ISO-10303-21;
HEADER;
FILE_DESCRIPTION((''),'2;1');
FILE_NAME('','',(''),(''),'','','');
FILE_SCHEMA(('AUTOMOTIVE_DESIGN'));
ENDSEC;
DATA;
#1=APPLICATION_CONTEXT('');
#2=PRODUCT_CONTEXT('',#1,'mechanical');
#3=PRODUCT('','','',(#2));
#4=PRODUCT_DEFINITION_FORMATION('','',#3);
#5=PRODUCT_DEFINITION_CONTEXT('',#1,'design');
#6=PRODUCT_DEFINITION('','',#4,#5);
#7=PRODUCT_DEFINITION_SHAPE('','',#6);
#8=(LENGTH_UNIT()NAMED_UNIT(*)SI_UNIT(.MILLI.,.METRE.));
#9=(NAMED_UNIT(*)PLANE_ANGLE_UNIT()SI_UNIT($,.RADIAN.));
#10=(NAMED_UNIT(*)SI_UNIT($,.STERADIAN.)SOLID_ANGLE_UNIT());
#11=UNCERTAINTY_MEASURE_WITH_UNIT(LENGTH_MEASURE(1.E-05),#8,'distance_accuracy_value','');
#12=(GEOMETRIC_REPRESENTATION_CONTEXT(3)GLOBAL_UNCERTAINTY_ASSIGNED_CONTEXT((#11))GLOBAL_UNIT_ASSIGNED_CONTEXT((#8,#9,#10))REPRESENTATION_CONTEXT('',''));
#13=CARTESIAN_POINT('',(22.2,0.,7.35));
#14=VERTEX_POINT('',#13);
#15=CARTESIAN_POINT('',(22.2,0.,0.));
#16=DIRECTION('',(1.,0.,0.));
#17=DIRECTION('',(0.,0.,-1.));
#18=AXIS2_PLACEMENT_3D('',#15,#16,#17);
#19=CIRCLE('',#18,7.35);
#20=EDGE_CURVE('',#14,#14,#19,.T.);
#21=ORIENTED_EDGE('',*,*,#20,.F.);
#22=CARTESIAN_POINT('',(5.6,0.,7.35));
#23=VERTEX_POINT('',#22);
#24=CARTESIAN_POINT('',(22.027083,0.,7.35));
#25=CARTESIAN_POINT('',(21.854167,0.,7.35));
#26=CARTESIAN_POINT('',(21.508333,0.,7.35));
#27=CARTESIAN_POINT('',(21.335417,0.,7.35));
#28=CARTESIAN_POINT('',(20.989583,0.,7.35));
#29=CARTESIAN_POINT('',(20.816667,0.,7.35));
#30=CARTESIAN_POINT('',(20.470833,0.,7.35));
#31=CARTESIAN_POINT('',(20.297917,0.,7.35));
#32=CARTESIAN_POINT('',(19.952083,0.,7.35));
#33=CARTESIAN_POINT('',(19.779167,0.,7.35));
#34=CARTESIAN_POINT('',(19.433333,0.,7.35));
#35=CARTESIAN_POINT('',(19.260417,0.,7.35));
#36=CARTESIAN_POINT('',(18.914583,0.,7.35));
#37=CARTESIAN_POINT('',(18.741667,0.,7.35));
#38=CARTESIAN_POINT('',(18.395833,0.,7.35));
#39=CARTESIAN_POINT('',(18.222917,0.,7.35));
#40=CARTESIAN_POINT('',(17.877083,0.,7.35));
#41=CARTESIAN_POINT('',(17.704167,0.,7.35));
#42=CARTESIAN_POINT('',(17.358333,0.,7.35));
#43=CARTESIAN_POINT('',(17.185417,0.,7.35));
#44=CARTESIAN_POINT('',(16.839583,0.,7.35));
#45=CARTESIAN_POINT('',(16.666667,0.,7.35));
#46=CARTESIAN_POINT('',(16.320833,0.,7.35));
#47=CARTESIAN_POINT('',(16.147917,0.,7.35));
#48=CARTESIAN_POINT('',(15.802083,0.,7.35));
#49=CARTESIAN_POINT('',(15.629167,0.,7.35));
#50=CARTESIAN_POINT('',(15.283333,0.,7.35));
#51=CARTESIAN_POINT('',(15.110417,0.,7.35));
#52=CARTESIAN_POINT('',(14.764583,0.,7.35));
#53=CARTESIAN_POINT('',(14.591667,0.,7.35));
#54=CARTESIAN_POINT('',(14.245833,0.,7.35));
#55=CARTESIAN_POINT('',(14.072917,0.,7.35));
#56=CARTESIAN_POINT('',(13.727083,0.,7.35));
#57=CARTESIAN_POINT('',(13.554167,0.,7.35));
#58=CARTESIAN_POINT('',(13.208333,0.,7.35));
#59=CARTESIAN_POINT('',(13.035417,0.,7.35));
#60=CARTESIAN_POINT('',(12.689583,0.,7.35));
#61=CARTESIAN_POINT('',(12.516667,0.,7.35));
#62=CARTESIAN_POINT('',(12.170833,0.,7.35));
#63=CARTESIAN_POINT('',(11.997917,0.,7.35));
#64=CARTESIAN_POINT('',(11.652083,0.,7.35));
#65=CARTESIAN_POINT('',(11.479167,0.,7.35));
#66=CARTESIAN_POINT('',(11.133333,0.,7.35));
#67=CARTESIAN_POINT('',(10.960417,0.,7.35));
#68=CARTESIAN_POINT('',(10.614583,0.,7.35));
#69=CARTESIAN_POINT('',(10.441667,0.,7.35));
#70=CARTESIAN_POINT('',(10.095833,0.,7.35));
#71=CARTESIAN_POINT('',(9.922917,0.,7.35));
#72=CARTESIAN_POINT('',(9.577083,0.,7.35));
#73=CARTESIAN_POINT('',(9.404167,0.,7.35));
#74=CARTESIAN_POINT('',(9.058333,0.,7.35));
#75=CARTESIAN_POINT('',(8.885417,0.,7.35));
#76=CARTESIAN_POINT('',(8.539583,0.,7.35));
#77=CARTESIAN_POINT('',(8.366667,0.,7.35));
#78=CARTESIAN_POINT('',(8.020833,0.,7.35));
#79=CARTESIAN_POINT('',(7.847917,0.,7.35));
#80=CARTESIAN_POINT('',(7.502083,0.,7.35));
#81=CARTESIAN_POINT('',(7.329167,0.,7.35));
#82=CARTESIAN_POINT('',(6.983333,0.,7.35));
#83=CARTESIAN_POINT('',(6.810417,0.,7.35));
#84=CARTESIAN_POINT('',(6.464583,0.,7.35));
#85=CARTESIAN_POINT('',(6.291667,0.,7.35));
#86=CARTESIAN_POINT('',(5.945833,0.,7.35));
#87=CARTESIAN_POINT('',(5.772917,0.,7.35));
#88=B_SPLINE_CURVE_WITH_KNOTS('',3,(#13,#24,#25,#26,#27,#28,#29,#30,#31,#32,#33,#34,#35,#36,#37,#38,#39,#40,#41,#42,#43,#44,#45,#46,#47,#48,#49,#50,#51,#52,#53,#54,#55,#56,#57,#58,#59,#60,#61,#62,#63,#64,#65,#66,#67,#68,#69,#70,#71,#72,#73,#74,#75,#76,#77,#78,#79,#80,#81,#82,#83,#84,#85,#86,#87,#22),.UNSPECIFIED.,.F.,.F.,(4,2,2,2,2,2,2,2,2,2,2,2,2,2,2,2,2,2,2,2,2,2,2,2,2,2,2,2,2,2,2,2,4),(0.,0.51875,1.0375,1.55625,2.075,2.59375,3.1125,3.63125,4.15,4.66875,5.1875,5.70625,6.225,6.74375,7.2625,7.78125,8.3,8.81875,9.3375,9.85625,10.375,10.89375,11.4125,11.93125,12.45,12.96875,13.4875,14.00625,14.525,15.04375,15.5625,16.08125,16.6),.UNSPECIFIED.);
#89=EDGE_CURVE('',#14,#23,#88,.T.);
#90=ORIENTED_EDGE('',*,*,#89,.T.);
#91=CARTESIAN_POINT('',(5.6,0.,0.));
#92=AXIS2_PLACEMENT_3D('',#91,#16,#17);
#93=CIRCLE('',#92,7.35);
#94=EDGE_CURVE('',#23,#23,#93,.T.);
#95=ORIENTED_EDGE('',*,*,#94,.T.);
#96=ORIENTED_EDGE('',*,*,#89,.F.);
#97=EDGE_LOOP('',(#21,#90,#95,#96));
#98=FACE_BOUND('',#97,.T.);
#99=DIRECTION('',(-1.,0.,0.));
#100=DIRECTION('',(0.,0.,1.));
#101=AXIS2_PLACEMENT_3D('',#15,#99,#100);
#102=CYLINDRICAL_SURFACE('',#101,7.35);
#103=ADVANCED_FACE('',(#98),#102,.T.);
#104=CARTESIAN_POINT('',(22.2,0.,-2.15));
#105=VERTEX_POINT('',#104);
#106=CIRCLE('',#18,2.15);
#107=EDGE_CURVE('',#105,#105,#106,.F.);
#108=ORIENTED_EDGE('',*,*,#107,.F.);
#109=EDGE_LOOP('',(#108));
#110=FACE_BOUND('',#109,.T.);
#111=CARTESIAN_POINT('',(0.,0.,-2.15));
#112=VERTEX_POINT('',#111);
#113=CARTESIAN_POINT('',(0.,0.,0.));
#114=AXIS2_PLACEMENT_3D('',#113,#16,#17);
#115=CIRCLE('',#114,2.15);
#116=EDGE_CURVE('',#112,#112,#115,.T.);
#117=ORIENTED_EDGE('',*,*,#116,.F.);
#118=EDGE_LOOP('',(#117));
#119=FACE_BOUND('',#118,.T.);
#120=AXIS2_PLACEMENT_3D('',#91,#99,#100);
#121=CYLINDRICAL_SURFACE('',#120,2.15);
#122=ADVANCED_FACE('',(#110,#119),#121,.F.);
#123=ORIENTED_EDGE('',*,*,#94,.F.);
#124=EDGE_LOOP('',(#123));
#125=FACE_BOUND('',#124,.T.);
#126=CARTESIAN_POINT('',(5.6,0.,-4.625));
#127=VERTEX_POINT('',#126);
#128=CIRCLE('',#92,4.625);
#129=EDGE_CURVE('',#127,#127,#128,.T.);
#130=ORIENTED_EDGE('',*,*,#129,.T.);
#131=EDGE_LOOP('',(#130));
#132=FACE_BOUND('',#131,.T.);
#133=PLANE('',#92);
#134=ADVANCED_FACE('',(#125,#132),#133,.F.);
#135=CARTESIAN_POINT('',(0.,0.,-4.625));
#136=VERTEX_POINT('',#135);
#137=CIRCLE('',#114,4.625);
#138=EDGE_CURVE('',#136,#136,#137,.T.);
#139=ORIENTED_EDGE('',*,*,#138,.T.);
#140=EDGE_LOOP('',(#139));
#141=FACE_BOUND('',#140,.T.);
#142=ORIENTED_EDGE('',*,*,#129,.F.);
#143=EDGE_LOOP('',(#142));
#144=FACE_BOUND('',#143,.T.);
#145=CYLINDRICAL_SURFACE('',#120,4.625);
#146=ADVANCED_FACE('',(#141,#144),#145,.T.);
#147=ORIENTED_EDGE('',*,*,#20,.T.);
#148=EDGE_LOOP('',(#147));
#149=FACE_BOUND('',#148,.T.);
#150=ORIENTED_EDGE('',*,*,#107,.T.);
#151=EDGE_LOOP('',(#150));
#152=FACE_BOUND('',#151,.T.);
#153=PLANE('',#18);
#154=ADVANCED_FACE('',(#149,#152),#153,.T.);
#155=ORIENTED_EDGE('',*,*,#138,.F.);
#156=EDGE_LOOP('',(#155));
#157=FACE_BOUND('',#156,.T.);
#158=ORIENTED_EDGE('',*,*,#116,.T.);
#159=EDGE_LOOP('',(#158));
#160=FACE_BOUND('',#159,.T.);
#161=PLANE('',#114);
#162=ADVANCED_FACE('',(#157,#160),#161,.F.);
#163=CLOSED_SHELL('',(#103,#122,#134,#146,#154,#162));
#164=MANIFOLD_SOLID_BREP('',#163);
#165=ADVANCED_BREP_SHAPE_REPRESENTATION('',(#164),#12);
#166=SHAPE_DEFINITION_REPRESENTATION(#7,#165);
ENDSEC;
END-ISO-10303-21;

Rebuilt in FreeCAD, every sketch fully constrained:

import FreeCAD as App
import Part
import Sketcher
Q = App.Units.Quantity

doc = App.newDocument("Part")
body = doc.addObject("PartDesign::Body", "Body")

# Sketch on YZ plane
sketch1 = body.newObject("Sketcher::SketchObject", "Sketch")
sketch1.AttachmentSupport = (doc.getObject("YZ_Plane"), [""])
sketch1.MapMode = "FlatFace"
sketch1.addGeometry([
    Part.Circle(App.Vector(0, 0, 0), App.Vector(0, 0, 1), 4.625),
    Part.Circle(App.Vector(0, 0, 0), App.Vector(0, 0, 1), 2.15),
], False)
sketch1.addConstraint([
    Sketcher.Constraint("Coincident", 0, 3, -1, 1),
    Sketcher.Constraint("Coincident", 1, 3, -1, 1),
    Sketcher.Constraint("Diameter", 1, Q("4.3 mm")),
    Sketcher.Constraint("Diameter", 0, Q("9.25 mm")),
])
pad1 = body.newObject("PartDesign::Pad", "Pad")
pad1.Profile = sketch1
pad1.Length = 5.6

# Sketch on YZ plane
sketch2 = body.newObject("Sketcher::SketchObject", "Sketch001")
sketch2.AttachmentSupport = (doc.getObject("YZ_Plane"), [""])
sketch2.MapMode = "FlatFace"
sketch2.AttachmentOffset = App.Placement(App.Vector(0, 0, 5.6), App.Rotation())
sketch2.addGeometry([
    Part.Circle(App.Vector(0, 0, 0), App.Vector(0, 0, 1), 7.35),
    Part.Circle(App.Vector(0, 0, 0), App.Vector(0, 0, 1), 2.15),
], False)
sketch2.addConstraint([
    Sketcher.Constraint("Coincident", 0, 3, -1, 1),
    Sketcher.Constraint("Coincident", 1, 3, -1, 1),
    Sketcher.Constraint("Diameter", 0, Q("14.7 mm")),
    Sketcher.Constraint("Diameter", 1, Q("4.3 mm")),
])
pad2 = body.newObject("PartDesign::Pad", "Pad001")
pad2.Profile = sketch2
pad2.Length = 16.6

doc.recompute()
